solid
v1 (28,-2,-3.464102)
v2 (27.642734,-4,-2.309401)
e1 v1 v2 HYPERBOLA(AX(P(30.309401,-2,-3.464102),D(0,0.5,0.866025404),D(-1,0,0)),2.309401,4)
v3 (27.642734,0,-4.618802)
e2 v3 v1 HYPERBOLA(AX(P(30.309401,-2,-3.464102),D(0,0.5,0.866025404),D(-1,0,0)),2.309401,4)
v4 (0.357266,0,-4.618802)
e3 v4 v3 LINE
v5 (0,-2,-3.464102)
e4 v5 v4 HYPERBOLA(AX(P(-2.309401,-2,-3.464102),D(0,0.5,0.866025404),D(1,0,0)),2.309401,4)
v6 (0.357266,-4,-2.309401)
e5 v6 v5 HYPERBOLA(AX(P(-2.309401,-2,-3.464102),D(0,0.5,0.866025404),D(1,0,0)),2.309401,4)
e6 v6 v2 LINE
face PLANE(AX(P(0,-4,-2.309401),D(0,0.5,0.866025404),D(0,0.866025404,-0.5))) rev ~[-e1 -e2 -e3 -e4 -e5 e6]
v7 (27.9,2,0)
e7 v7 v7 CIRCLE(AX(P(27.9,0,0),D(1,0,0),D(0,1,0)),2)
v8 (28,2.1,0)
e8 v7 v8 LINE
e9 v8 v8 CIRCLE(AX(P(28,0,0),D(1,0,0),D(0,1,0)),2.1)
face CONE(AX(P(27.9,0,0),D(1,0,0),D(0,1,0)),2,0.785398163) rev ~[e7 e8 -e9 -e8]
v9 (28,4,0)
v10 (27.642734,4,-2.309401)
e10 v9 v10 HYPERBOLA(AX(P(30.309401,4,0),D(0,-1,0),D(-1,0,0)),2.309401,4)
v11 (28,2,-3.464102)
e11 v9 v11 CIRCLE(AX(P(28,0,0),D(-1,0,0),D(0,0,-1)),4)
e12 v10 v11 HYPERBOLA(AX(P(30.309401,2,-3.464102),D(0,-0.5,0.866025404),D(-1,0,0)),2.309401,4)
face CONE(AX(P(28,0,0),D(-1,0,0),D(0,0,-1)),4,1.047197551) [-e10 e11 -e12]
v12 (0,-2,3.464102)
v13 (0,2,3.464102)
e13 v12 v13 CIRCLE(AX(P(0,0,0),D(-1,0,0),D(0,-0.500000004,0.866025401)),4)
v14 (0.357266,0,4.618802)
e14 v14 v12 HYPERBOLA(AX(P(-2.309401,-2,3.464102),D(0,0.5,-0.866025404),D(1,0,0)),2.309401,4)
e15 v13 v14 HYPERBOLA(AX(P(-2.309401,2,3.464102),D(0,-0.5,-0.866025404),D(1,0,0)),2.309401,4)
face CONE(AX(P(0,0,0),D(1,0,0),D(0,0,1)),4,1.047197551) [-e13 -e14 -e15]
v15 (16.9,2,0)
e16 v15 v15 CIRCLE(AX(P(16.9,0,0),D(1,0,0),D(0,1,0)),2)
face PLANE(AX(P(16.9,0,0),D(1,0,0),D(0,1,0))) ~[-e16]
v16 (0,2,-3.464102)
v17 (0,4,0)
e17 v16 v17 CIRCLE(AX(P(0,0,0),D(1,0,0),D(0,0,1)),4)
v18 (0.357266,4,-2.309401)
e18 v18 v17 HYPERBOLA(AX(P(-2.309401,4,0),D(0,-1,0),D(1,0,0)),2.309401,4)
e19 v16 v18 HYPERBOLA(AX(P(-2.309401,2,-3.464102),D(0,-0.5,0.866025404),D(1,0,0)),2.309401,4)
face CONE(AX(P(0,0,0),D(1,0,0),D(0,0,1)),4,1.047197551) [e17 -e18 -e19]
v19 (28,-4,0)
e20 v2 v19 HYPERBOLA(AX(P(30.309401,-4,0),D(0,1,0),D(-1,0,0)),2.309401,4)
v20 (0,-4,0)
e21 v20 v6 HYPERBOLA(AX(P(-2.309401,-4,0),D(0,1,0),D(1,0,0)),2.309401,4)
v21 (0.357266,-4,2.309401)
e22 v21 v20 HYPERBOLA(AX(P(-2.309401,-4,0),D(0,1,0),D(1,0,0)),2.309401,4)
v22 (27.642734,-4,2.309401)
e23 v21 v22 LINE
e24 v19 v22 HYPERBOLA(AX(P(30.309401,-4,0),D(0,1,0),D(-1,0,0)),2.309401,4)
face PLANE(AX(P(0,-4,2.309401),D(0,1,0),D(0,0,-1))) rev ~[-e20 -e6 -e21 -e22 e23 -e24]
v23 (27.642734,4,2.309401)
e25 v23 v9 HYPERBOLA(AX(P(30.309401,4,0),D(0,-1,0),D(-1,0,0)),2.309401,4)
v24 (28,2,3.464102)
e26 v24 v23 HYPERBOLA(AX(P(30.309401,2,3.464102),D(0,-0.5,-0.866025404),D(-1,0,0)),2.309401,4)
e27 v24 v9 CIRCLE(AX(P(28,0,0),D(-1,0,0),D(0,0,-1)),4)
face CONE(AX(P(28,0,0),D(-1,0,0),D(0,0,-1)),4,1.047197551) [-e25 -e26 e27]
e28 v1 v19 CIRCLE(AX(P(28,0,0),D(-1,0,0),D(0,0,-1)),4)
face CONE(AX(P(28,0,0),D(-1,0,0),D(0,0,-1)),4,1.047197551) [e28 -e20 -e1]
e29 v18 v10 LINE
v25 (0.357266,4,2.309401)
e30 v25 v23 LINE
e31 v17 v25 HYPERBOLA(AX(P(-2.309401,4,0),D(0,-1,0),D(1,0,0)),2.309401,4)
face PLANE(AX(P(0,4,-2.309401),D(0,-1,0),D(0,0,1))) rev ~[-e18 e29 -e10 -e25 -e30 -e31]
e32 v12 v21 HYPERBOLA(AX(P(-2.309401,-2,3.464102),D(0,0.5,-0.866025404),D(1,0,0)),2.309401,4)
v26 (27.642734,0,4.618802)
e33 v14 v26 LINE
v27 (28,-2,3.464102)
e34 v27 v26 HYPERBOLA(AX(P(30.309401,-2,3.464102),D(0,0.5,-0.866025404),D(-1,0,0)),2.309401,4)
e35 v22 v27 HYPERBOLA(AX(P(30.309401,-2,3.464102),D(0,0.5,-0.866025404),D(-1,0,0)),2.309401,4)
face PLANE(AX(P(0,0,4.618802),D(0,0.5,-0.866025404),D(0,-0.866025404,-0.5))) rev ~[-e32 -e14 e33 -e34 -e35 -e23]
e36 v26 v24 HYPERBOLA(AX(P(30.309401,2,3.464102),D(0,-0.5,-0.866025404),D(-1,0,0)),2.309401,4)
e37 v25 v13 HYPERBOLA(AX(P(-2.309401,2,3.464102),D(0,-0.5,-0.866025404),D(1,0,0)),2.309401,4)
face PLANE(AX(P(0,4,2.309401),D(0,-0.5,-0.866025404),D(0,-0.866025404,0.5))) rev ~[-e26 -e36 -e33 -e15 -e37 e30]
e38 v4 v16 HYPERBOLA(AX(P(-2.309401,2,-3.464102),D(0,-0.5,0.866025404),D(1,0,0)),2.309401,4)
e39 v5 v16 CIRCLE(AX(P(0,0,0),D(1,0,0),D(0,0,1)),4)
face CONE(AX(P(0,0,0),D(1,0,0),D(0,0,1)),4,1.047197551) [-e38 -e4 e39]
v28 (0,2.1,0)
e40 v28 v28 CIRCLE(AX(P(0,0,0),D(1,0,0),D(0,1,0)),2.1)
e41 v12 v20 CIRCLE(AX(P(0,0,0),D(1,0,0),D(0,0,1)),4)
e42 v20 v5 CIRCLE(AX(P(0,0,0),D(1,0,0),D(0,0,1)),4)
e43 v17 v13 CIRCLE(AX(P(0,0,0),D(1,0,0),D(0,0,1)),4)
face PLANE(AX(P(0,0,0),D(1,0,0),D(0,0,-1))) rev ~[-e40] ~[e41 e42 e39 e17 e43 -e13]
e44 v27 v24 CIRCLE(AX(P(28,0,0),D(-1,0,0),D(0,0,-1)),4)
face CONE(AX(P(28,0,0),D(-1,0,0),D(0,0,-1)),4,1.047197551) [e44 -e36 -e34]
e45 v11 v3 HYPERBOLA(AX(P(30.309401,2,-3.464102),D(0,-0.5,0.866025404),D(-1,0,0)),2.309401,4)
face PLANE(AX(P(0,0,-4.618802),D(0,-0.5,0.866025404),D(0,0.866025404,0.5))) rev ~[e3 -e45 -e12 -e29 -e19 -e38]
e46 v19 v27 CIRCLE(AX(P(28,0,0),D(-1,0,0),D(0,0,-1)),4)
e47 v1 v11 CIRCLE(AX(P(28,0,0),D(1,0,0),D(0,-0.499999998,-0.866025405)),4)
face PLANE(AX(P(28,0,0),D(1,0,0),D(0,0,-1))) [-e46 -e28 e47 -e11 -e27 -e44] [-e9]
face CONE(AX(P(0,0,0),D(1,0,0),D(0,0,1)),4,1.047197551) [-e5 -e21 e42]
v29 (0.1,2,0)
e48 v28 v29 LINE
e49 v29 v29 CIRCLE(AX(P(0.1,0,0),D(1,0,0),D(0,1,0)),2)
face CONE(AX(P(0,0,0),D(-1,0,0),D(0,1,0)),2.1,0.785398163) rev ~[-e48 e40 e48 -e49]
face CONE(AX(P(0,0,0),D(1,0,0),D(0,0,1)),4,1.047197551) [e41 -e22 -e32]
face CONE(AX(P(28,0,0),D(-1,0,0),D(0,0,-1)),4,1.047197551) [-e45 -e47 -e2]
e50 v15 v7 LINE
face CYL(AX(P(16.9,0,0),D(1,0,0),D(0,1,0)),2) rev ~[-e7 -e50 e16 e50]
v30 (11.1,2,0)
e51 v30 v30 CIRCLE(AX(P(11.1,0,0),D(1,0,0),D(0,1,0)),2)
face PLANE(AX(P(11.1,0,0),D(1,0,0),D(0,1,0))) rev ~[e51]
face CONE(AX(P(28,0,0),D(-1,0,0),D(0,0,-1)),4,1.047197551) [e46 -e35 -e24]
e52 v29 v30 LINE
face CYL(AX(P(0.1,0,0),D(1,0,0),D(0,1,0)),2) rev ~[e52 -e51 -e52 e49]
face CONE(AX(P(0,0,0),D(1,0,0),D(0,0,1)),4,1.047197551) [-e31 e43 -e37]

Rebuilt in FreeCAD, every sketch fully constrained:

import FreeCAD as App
import Part
import Sketcher
from FreeCAD import Vector
Q = App.Units.Quantity

doc = App.newDocument("Part")
params = doc.addObject("Spreadsheet::Sheet", "Params")
for row, (alias, value) in enumerate([
    ("pad1_length", "28 mm"),
    ("sketch2_width", "11 mm"),
    ("sketch2_height", "2 mm"),
    ("sketch2_width2", "11.1 mm"),
    ("groove_angle", "360 deg"),
    ("sketch3_diameter", "8 mm"),
    ("sketch3_width", "116.57 mm"),
    ("pocket1_length", "29 mm"),
    ("pocket1_taper", "60 deg"),
    ("sketch4_diameter", "8 mm"),
    ("sketch4_width", "116.57 mm"),
    ("pocket2_length", "29 mm"),
    ("pocket2_taper", "60 deg"),
], start=1):
    params.set(f"A{row}", alias)
    params.set(f"B{row}", "=" + value)
    params.setAlias(f"B{row}", alias)

body = doc.addObject("PartDesign::Body", "Body")

# Sketch on YZ plane
sketch1 = doc.addObject("Sketcher::SketchObject", "Sketch")
body.addObject(sketch1)
sketch1.AttachmentSupport = (doc.YZ_Plane, [""])
sketch1.MapMode = "FlatFace"
sketch1.addGeometry([
    Part.LineSegment(Vector(4, -2.3, 0), Vector(4, 2.3, 0)),  # 0
    Part.LineSegment(Vector(4, 2.3, 0), Vector(0, 4.6, 0)),  # 1
    Part.LineSegment(Vector(0, 4.6, 0), Vector(-4, 2.3, 0)),  # 2
    Part.LineSegment(Vector(-4, 2.3, 0), Vector(-4, -2.3, 0)),  # 3
    Part.LineSegment(Vector(-4, -2.3, 0), Vector(0, -4.6, 0)),  # 4
    Part.LineSegment(Vector(0, -4.6, 0), Vector(4, -2.3, 0)),  # 5
], False)
sketch1.addConstraint([
    Sketcher.Constraint("Coincident", 0, 2, 1, 1),
    Sketcher.Constraint("Coincident", 1, 2, 2, 1),
    Sketcher.Constraint("Coincident", 2, 2, 3, 1),
    Sketcher.Constraint("Coincident", 3, 2, 4, 1),
    Sketcher.Constraint("Coincident", 4, 2, 5, 1),
    Sketcher.Constraint("Coincident", 5, 2, 0, 1),
    Sketcher.Constraint("Vertical", 0),
    Sketcher.Constraint("Vertical", 3),
    Sketcher.Constraint("Symmetric", 0, 2, 3, 2, -1, 1),
    Sketcher.Constraint("Symmetric", 1, 2, 4, 2, -1, 1),
    Sketcher.Constraint("PointOnObject", 1, 2, -2),
    Sketcher.Constraint("Parallel", 2, 5),
    Sketcher.Constraint("Horizontal", 0, 2, 2, 2),
    Sketcher.Constraint("Angle", 1, Q("150 deg")),
    Sketcher.Constraint("DistanceX", -1, 1, 0, 2, Q("4 mm")),
    Sketcher.Constraint("DistanceY", -1, 1, 0, 2, Q("2.309401 mm")),
])
pad1 = doc.addObject("PartDesign::Pad", "Pad")
body.addObject(pad1)
pad1.Profile = sketch1
pad1.setExpression("Length", "Params.pad1_length")

# Sketch on XY plane
sketch2 = doc.addObject("Sketcher::SketchObject", "Sketch001")
body.addObject(sketch2)
sketch2.AttachmentSupport = (doc.XY_Plane, [""])
sketch2.MapMode = "FlatFace"
sketch2.addGeometry([
    Part.LineSegment(Vector(0.1, 2, 0), Vector(0, 2.1, 0)),  # 0
    Part.LineSegment(Vector(0, 2.1, 0), Vector(0, 0, 0)),  # 1
    Part.LineSegment(Vector(0, 0, 0), Vector(11.1, 0, 0)),  # 2
    Part.LineSegment(Vector(11.1, 0, 0), Vector(11.1, 2, 0)),  # 3
    Part.LineSegment(Vector(11.1, 2, 0), Vector(0.1, 2, 0)),  # 4
    Part.LineSegment(Vector(16.9, 0, 0), Vector(28, 0, 0)),  # 5
    Part.LineSegment(Vector(28, 0, 0), Vector(28, 2.1, 0)),  # 6
    Part.LineSegment(Vector(28, 2.1, 0), Vector(27.9, 2, 0)),  # 7
    Part.LineSegment(Vector(27.9, 2, 0), Vector(16.9, 2, 0)),  # 8
    Part.LineSegment(Vector(16.9, 2, 0), Vector(16.9, 0, 0)),  # 9
], False)
sketch2.addConstraint([
    Sketcher.Constraint("Coincident", 0, 2, 1, 1),
    Sketcher.Constraint("Coincident", 1, 2, 2, 1),
    Sketcher.Constraint("Coincident", 2, 2, 3, 1),
    Sketcher.Constraint("Coincident", 3, 2, 4, 1),
    Sketcher.Constraint("Coincident", 4, 2, 0, 1),
    Sketcher.Constraint("Coincident", 5, 2, 6, 1),
    Sketcher.Constraint("Coincident", 6, 2, 7, 1),
    Sketcher.Constraint("Coincident", 7, 2, 8, 1),
    Sketcher.Constraint("Coincident", 8, 2, 9, 1),
    Sketcher.Constraint("Coincident", 9, 2, 5, 1),
    Sketcher.Constraint("Vertical", 1),
    Sketcher.Constraint("Horizontal", 2),
    Sketcher.Constraint("Vertical", 3),
    Sketcher.Constraint("Horizontal", 4),
    Sketcher.Constraint("Horizontal", 5),
    Sketcher.Constraint("Vertical", 6),
    Sketcher.Constraint("Horizontal", 8),
    Sketcher.Constraint("Vertical", 9),
    Sketcher.Constraint("Coincident", 1, 2, -1, 1),
    Sketcher.Constraint("PointOnObject", 5, 2, -1),
    Sketcher.Constraint("Perpendicular", 0, 7),
    Sketcher.Constraint("Horizontal", 0, 2, 6, 2),
    Sketcher.Constraint("Horizontal", 4, 2, 7, 2),
    Sketcher.Constraint("Equal", 2, 5),
    Sketcher.Constraint("Equal", 4, 8),
    Sketcher.Constraint("DistanceX", 4, 2, 4, 1, Q("11 mm")),
    Sketcher.Constraint("DistanceY", 3, 1, 3, 2, Q("2 mm")),
    Sketcher.Constraint("DistanceX", 2, 1, 2, 2, Q("11.1 mm")),
    Sketcher.Constraint("DistanceX", -1, 1, 5, 2, Q("28 mm")),
])
sketch2.setExpression("Constraints[25]", "Params.sketch2_width")
sketch2.setExpression("Constraints[26]", "Params.sketch2_height")
sketch2.setExpression("Constraints[27]", "Params.sketch2_width2")
groove = doc.addObject("PartDesign::Groove", "Groove")
body.addObject(groove)
groove.Profile = sketch2
groove.ReferenceAxis = (sketch2, ["H_Axis"])
groove.setExpression("Angle", "Params.groove_angle")

# Sketch on YZ plane
sketch3 = doc.addObject("Sketcher::SketchObject", "Sketch002")
body.addObject(sketch3)
sketch3.AttachmentSupport = (doc.YZ_Plane, [""])
sketch3.MapMode = "FlatFace"
sketch3.addGeometry([
    Part.LineSegment(Vector(58.3, -58.9, 0), Vector(-58.3, -58.9, 0)),  # 0
    Part.LineSegment(Vector(-58.3, -58.9, 0), Vector(-58.3, 58.9, 0)),  # 1
    Part.LineSegment(Vector(-58.3, 58.9, 0), Vector(58.3, 58.9, 0)),  # 2
    Part.LineSegment(Vector(58.3, 58.9, 0), Vector(58.3, -58.9, 0)),  # 3
    Part.Circle(Vector(0, 0, 0), Vector(0, 0, 1), 4),  # 4
], False)
sketch3.addConstraint([
    Sketcher.Constraint("Coincident", 0, 2, 1, 1),
    Sketcher.Constraint("Coincident", 1, 2, 2, 1),
    Sketcher.Constraint("Coincident", 2, 2, 3, 1),
    Sketcher.Constraint("Coincident", 3, 2, 0, 1),
    Sketcher.Constraint("Horizontal", 0),
    Sketcher.Constraint("Vertical", 1),
    Sketcher.Constraint("Horizontal", 2),
    Sketcher.Constraint("Vertical", 3),
    Sketcher.Constraint("Coincident", 4, 3, -1, 1),
    Sketcher.Constraint("Symmetric", 0, 2, 2, 2, -1, 1),
    Sketcher.Constraint("Diameter", 4, Q("8 mm")),
    Sketcher.Constraint("DistanceX", 0, 2, 0, 1, Q("116.57 mm")),
    Sketcher.Constraint("DistanceY", 1, 1, 1, 2, Q("117.808 mm")),
])
sketch3.setExpression("Constraints[10]", "Params.sketch3_diameter")
sketch3.setExpression("Constraints[11]", "Params.sketch3_width")
pocket1 = doc.addObject("PartDesign::Pocket", "Pocket")
body.addObject(pocket1)
pocket1.Profile = sketch3
pocket1.setExpression("Length", "Params.pocket1_length")
pocket1.Reversed = True
pocket1.setExpression("TaperAngle", "Params.pocket1_taper")

# Sketch on YZ plane
sketch4 = doc.addObject("Sketcher::SketchObject", "Sketch003")
body.addObject(sketch4)
sketch4.AttachmentSupport = (doc.YZ_Plane, [""])
sketch4.MapMode = "FlatFace"
sketch4.AttachmentOffset = App.Placement(Vector(0, 0, 28), App.Rotation())
sketch4.addGeometry([
    Part.LineSegment(Vector(58.3, 58.9, 0), Vector(-58.3, 58.9, 0)),  # 0
    Part.LineSegment(Vector(-58.3, 58.9, 0), Vector(-58.3, -58.9, 0)),  # 1
    Part.LineSegment(Vector(-58.3, -58.9, 0), Vector(58.3, -58.9, 0)),  # 2
    Part.LineSegment(Vector(58.3, -58.9, 0), Vector(58.3, 58.9, 0)),  # 3
    Part.Circle(Vector(0, 0, 0), Vector(0, 0, 1), 4),  # 4
], False)
sketch4.addConstraint([
    Sketcher.Constraint("Coincident", 0, 2, 1, 1),
    Sketcher.Constraint("Coincident", 1, 2, 2, 1),
    Sketcher.Constraint("Coincident", 2, 2, 3, 1),
    Sketcher.Constraint("Coincident", 3, 2, 0, 1),
    Sketcher.Constraint("Horizontal", 0),
    Sketcher.Constraint("Vertical", 1),
    Sketcher.Constraint("Horizontal", 2),
    Sketcher.Constraint("Vertical", 3),
    Sketcher.Constraint("Coincident", 4, 3, -1, 1),
    Sketcher.Constraint("Symmetric", 0, 2, 2, 2, -1, 1),
    Sketcher.Constraint("Diameter", 4, Q("8 mm")),
    Sketcher.Constraint("DistanceX", 0, 2, 0, 1, Q("116.57 mm")),
    Sketcher.Constraint("DistanceY", 1, 2, 1, 1, Q("117.808 mm")),
])
sketch4.setExpression("Constraints[10]", "Params.sketch4_diameter")
sketch4.setExpression("Constraints[11]", "Params.sketch4_width")
pocket2 = doc.addObject("PartDesign::Pocket", "Pocket001")
body.addObject(pocket2)
pocket2.Profile = sketch4
pocket2.setExpression("Length", "Params.pocket2_length")
pocket2.setExpression("TaperAngle", "Params.pocket2_taper")

doc.recompute()
